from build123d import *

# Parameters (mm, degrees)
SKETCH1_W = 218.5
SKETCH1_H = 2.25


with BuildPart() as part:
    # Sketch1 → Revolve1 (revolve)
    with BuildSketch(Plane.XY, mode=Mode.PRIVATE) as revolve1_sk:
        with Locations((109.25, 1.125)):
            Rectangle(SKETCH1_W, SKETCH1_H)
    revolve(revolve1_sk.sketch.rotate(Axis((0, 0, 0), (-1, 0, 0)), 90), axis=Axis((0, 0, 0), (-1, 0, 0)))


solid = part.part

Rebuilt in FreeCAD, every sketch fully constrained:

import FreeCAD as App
import Part
import Sketcher
from FreeCAD import Vector


def add_polygon(sketch, points):
    """Adds a closed chain of lines whose ends are joined by coincident constraints."""
    first, n = sketch.GeometryCount, len(points)
    for a, b in zip(points, points[1:] + points[:1]):
        sketch.addGeometry(Part.LineSegment(App.Vector(*a, 0), App.Vector(*b, 0)), False)
    for i in range(n):
        sketch.addConstraint(Sketcher.Constraint("Coincident", first + i, 2, first + (i + 1) % n, 1))

doc = App.newDocument("Part")
params = doc.addObject("Spreadsheet::Sheet", "Params")
for row, (alias, value) in enumerate([
    ("sketch1_width", "218.5 mm"),
    ("sketch1_height", "2.25 mm"),
    ("revolution_angle", "360 deg"),
], start=1):
    params.set(f"A{row}", alias)
    params.set(f"B{row}", "=" + value)
    params.setAlias(f"B{row}", alias)

body = doc.addObject("PartDesign::Body", "Body")

sketch1 = body.newObject("Sketcher::SketchObject", "Sketch")
sketch1.AttachmentSupport = (doc.getObject("XY_Plane"), [""])
sketch1.MapMode = "FlatFace"
add_polygon(sketch1, [(0, 2.2), (0, 0), (218.5, 0), (218.5, 2.2)])
sketch1.addConstraint([
    Sketcher.Constraint("Vertical", 0),
    Sketcher.Constraint("Horizontal", 1),
    Sketcher.Constraint("Vertical", 2),
    Sketcher.Constraint("Horizontal", 3),
    Sketcher.Constraint("Coincident", 0, 2, -1, 1),
    Sketcher.Constraint("DistanceX", 1, 1, 1, 2, 218.5),
    Sketcher.Constraint("DistanceY", 0, 2, 0, 1, 2.25),
])
sketch1.setExpression("Constraints[9]", "Params.sketch1_width")
sketch1.setExpression("Constraints[10]", "Params.sketch1_height")
revolution = body.newObject("PartDesign::Revolution", "Revolution")
revolution.Profile = sketch1
revolution.ReferenceAxis = (sketch1, ["H_Axis"])
revolution.setExpression("Angle", "Params.revolution_angle")

doc.recompute()
